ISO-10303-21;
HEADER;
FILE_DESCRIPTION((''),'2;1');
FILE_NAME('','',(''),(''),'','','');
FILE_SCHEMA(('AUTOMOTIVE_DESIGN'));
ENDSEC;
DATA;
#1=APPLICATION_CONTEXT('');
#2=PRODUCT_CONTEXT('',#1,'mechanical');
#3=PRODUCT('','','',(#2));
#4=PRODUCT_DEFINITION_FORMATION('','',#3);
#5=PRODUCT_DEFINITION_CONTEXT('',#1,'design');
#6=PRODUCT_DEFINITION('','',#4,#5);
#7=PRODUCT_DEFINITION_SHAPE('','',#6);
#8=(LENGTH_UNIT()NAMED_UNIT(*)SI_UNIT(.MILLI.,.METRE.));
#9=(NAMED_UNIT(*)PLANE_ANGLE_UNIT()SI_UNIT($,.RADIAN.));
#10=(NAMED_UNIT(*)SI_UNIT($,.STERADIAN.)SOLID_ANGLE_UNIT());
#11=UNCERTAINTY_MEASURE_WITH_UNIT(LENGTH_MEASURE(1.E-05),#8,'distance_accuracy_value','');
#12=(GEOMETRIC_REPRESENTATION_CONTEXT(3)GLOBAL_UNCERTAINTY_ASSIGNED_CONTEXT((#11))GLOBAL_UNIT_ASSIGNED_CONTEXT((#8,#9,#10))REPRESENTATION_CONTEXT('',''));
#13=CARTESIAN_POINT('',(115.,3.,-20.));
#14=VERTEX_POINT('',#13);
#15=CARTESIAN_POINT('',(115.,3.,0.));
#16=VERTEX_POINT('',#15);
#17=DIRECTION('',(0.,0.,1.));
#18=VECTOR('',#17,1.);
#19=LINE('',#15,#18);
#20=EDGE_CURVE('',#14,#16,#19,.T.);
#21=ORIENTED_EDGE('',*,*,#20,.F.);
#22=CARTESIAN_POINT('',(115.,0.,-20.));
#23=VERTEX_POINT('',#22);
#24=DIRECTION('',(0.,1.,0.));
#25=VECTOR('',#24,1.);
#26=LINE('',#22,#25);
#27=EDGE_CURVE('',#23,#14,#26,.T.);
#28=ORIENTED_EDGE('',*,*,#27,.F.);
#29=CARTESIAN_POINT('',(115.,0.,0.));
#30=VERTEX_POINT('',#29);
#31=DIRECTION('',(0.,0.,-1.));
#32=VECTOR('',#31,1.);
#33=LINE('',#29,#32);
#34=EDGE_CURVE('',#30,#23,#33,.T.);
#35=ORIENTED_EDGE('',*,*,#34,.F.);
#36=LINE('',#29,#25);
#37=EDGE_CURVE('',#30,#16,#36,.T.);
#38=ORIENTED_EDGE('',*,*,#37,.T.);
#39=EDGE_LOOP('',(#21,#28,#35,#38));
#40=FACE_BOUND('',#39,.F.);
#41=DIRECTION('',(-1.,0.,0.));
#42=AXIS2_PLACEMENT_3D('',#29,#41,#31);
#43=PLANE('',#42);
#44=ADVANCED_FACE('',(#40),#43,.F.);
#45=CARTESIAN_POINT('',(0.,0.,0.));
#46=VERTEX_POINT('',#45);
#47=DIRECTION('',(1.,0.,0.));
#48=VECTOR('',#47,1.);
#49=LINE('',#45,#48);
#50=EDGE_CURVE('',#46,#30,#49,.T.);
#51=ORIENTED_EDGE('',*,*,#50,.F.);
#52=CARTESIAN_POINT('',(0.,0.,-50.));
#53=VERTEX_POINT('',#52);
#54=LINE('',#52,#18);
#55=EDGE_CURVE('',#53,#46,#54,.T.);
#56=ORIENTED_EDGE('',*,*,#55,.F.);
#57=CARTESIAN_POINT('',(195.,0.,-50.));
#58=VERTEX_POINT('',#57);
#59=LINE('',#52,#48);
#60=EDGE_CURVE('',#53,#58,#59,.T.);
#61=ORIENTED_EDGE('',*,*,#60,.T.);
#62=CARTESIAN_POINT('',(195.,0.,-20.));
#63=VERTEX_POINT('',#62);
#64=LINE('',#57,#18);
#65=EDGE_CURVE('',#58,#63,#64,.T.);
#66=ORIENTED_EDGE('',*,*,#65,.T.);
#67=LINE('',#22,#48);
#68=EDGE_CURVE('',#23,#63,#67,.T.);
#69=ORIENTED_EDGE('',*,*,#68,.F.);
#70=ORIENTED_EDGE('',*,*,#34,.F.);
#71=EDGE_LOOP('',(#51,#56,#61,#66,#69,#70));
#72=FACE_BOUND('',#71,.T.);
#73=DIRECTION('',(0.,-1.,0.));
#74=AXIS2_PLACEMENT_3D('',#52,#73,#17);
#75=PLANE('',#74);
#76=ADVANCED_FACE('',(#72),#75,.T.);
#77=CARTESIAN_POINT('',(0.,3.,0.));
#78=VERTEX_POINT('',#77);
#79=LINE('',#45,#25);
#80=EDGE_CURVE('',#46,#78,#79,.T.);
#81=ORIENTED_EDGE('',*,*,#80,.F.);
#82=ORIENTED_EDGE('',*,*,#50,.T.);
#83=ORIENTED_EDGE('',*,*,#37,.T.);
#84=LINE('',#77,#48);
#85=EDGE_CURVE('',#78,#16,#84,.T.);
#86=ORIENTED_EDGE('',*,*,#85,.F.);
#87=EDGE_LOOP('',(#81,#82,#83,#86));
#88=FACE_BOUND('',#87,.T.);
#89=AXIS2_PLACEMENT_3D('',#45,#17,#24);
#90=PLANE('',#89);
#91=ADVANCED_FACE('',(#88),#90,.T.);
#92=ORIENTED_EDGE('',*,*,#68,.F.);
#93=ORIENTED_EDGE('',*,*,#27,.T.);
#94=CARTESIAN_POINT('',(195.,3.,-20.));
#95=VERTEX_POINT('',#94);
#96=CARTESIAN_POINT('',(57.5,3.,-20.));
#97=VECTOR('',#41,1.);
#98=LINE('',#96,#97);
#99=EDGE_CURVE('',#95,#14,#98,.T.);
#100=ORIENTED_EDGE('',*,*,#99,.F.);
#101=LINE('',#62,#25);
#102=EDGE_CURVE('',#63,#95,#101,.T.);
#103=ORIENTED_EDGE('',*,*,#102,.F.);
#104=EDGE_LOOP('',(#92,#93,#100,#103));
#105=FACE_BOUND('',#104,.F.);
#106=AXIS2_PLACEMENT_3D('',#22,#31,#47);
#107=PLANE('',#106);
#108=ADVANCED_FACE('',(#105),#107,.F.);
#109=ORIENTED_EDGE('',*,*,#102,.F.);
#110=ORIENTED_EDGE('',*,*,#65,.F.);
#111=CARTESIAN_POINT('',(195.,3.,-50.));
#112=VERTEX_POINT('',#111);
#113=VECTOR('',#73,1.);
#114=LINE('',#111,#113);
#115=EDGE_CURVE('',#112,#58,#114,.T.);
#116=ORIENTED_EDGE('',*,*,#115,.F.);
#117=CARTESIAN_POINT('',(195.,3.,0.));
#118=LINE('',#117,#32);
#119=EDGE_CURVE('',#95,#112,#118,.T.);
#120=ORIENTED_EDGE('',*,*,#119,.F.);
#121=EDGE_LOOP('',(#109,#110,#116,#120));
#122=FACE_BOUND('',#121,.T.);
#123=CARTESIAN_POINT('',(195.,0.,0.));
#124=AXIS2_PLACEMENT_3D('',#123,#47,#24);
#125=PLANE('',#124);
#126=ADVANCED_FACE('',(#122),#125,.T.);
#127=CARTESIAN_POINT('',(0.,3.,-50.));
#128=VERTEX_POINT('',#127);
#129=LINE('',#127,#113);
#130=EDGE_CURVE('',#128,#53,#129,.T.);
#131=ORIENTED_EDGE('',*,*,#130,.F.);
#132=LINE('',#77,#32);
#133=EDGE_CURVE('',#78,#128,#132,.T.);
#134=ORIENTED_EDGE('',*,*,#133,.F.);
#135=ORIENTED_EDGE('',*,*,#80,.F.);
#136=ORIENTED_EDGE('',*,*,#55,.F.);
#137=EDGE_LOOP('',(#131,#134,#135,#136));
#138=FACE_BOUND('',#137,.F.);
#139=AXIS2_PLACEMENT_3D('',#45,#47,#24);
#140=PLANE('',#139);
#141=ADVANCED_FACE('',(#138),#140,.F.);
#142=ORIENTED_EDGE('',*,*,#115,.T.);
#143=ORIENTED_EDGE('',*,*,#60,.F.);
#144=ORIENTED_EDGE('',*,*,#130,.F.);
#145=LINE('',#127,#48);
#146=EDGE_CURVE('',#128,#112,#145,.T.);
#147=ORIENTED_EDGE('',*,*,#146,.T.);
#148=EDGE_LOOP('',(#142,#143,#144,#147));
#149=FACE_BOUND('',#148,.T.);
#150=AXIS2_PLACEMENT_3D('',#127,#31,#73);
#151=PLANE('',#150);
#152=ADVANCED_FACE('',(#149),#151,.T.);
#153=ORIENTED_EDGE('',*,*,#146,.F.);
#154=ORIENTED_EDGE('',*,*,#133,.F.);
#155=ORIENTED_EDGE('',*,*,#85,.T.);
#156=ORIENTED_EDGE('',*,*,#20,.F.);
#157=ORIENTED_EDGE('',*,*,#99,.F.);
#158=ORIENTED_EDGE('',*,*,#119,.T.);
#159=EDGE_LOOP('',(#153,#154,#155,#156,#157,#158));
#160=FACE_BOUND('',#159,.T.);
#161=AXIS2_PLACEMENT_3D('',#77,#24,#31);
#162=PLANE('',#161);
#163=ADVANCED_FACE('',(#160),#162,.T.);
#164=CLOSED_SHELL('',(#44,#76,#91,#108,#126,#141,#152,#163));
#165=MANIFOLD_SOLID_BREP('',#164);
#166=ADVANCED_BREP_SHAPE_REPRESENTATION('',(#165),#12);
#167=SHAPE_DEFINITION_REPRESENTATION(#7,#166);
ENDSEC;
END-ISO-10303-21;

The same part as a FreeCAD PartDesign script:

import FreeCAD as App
import Part
import Sketcher
from FreeCAD import Vector
Q = App.Units.Quantity

doc = App.newDocument("Part")
body = doc.addObject("PartDesign::Body", "Body")

# Sketch on YZ plane
sketch1 = doc.addObject("Sketcher::SketchObject", "Sketch")
body.addObject(sketch1)
sketch1.AttachmentSupport = (doc.YZ_Plane, [""])
sketch1.MapMode = "FlatFace"
sketch1.addGeometry(Part.LineSegment(Vector(3, 0, 0), Vector(0, 0, 0)), False)
sketch1.addGeometry(Part.LineSegment(Vector(0, 0, 0), Vector(0, -50, 0)), False)
sketch1.addGeometry(Part.LineSegment(Vector(0, -50, 0), Vector(3, -50, 0)), False)
sketch1.addGeometry(Part.LineSegment(Vector(3, -50, 0), Vector(3, 0, 0)), False)
sketch1.addConstraint(Sketcher.Constraint("Coincident", 0, 2, 1, 1))
sketch1.addConstraint(Sketcher.Constraint("Coincident", 1, 2, 2, 1))
sketch1.addConstraint(Sketcher.Constraint("Coincident", 2, 2, 3, 1))
sketch1.addConstraint(Sketcher.Constraint("Coincident", 3, 2, 0, 1))
sketch1.addConstraint(Sketcher.Constraint("Horizontal", 0))
sketch1.addConstraint(Sketcher.Constraint("Vertical", 1))
sketch1.addConstraint(Sketcher.Constraint("Horizontal", 2))
sketch1.addConstraint(Sketcher.Constraint("Vertical", 3))
sketch1.addConstraint(Sketcher.Constraint("Coincident", 0, 2, -1, 1))
sketch1.addConstraint(Sketcher.Constraint("DistanceX", 0, 2, 0, 1, Q("3 mm")))
sketch1.addConstraint(Sketcher.Constraint("DistanceY", 1, 2, 1, 1, Q("50 mm")))
pad1 = doc.addObject("PartDesign::Pad", "Pad")
body.addObject(pad1)
pad1.Profile = sketch1
pad1.Length = 195

# Sketch on XZ plane
sketch2 = doc.addObject("Sketcher::SketchObject", "Sketch001")
body.addObject(sketch2)
sketch2.AttachmentSupport = (doc.XZ_Plane, [""])
sketch2.MapMode = "FlatFace"
sketch2.addGeometry(Part.LineSegment(Vector(195, 0, 0), Vector(115, 0, 0)), False)
sketch2.addGeometry(Part.LineSegment(Vector(115, 0, 0), Vector(115, -20, 0)), False)
sketch2.addGeometry(Part.LineSegment(Vector(115, -20, 0), Vector(195, -20, 0)), False)
sketch2.addGeometry(Part.LineSegment(Vector(195, -20, 0), Vector(195, 0, 0)), False)
sketch2.addConstraint(Sketcher.Constraint("Coincident", 0, 2, 1, 1))
sketch2.addConstraint(Sketcher.Constraint("Coincident", 1, 2, 2, 1))
sketch2.addConstraint(Sketcher.Constraint("Coincident", 2, 2, 3, 1))
sketch2.addConstraint(Sketcher.Constraint("Coincident", 3, 2, 0, 1))
sketch2.addConstraint(Sketcher.Constraint("Horizontal", 0))
sketch2.addConstraint(Sketcher.Constraint("Vertical", 1))
sketch2.addConstraint(Sketcher.Constraint("Horizontal", 2))
sketch2.addConstraint(Sketcher.Constraint("Vertical", 3))
sketch2.addConstraint(Sketcher.Constraint("PointOnObject", 0, 2, -1))
sketch2.addConstraint(Sketcher.Constraint("DistanceX", 0, 2, 0, 1, Q("80 mm")))
sketch2.addConstraint(Sketcher.Constraint("DistanceY", 1, 2, 1, 1, Q("20 mm")))
sketch2.addConstraint(Sketcher.Constraint("DistanceX", -1, 1, 0, 2, Q("115 mm")))
pocket1 = doc.addObject("PartDesign::Pocket", "Pocket")
body.addObject(pocket1)
pocket1.Profile = sketch2
pocket1.Length = 195

doc.recompute()
